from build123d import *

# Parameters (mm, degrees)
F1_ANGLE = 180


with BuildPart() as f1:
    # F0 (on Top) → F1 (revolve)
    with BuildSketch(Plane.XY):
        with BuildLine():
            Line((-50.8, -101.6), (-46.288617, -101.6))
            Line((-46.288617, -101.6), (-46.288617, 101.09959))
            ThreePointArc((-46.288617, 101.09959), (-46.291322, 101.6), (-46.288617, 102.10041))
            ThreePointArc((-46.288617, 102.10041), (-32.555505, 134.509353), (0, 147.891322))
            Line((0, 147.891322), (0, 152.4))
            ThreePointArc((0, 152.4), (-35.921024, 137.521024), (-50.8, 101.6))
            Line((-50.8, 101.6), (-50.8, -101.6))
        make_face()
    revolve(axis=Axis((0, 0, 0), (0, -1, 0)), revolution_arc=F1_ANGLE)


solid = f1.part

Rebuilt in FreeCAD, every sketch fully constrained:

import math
import FreeCAD as App
import Part
import Sketcher

V = App.Vector
Q = App.Units.Quantity

doc = App.newDocument("Part")
body = doc.addObject("PartDesign::Body", "Body")

sketch1 = doc.addObject("Sketcher::SketchObject", "Sketch")
body.addObject(sketch1)
sketch1.AttachmentSupport = (doc.XY_Plane, [""])
sketch1.MapMode = "FlatFace"
sketch1.addGeometry([
    Part.LineSegment(V(-50.8, -101.6, 0), V(-46.288617, -101.6, 0)),
    Part.LineSegment(V(-46.288617, -101.6, 0), V(-46.288617, 101.09959, 0)),
    Part.ArcOfCircle(Part.Circle(V(-0.003432, 101.6, 0), V(0, 0, 1), 46.28789), math.radians(179.380574), math.radians(180.619426)),
    Part.ArcOfCircle(Part.Circle(V(0.000002, 101.599998, 0), V(0, 0, 1), 46.291324), math.radians(90.000002), math.radians(179.380618)),
    Part.LineSegment(V(0, 147.891322, 0), V(0, 152.4, 0)),
    Part.ArcOfCircle(Part.Circle(V(0.000002, 101.599998, 0), V(0, 0, 1), 50.800002), math.radians(90.000002), math.radians(179.999998)),
    Part.LineSegment(V(-50.8, 101.6, 0), V(-50.8, -101.6, 0)),
], False)
sketch1.addConstraint([
    Sketcher.Constraint("Coincident", 0, 2, 1, 1),
    Sketcher.Constraint("Coincident", 1, 2, 2, 2),
    Sketcher.Constraint("Coincident", 2, 1, 3, 2),
    Sketcher.Constraint("Coincident", 3, 1, 4, 1),
    Sketcher.Constraint("Coincident", 4, 2, 5, 1),
    Sketcher.Constraint("Coincident", 5, 2, 6, 1),
    Sketcher.Constraint("Coincident", 6, 2, 0, 1),
    Sketcher.Constraint("Horizontal", 0),
    Sketcher.Constraint("Vertical", 1),
    Sketcher.Constraint("Vertical", 4),
    Sketcher.Constraint("Vertical", 6),
    Sketcher.Constraint("Coincident", 5, 3, 3, 3),
    Sketcher.Constraint("PointOnObject", 3, 3, -2),
    Sketcher.Constraint("PointOnObject", 3, 1, -2),
    Sketcher.Constraint("Radius", 5, Q("2.0000001 in")),
    Sketcher.Constraint("DistanceY", 6, 2, 6, 1, Q("8 in")),
    Sketcher.Constraint("DistanceY", -1, 1, 2, 3, Q("4 in")),
    Sketcher.Constraint("DistanceY", -1, 1, 3, 3, Q("3.9999999 in")),
    Sketcher.Constraint("DistanceY", 0, 2, -1, 1, Q("4 in")),
    Sketcher.Constraint("Radius", 2, 46.28789),
    Sketcher.Constraint("Radius", 3, 46.291324),
    Sketcher.Constraint("DistanceY", 1, 1, 1, 2, 202.69959),
    Sketcher.Constraint("DistanceY", -1, 1, 2, 1, 102.10041),
])
revolution = doc.addObject("PartDesign::Revolution", "Revolution")
body.addObject(revolution)
revolution.Profile = sketch1
revolution.ReferenceAxis = (sketch1, ["V_Axis"])
revolution.Angle = 180
revolution.Reversed = True

doc.recompute()
